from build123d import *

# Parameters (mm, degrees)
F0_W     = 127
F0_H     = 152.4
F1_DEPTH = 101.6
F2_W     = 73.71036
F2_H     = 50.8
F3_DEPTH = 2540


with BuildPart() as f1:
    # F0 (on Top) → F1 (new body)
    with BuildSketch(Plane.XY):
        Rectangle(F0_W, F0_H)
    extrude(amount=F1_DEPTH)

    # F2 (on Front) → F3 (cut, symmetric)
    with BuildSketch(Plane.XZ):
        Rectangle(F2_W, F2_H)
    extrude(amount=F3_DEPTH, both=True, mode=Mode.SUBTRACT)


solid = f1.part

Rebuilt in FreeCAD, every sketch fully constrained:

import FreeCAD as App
import Part
import Sketcher
from FreeCAD import Vector
Q = App.Units.Quantity


def add_polygon(sketch, points):
    """Adds a closed chain of lines whose ends are joined by coincident constraints."""
    first, n = sketch.GeometryCount, len(points)
    for a, b in zip(points, points[1:] + points[:1]):
        sketch.addGeometry(Part.LineSegment(App.Vector(*a, 0), App.Vector(*b, 0)), False)
    for i in range(n):
        sketch.addConstraint(Sketcher.Constraint("Coincident", first + i, 2, first + (i + 1) % n, 1))

doc = App.newDocument("Part")
body = doc.addObject("PartDesign::Body", "Body")

# Sketch on XY plane
sketch1 = body.newObject("Sketcher::SketchObject", "Sketch")
sketch1.AttachmentSupport = (doc.getObject("XY_Plane"), [""])
sketch1.MapMode = "FlatFace"
add_polygon(sketch1, [(-63.5, 76.2), (-63.5, -76.2), (63.5, -76.2), (63.5, 76.2)])  # lines 0-3
sketch1.addConstraint(Sketcher.Constraint("Vertical", 0))
sketch1.addConstraint(Sketcher.Constraint("Horizontal", 1))
sketch1.addConstraint(Sketcher.Constraint("Vertical", 2))
sketch1.addConstraint(Sketcher.Constraint("Horizontal", 3))
sketch1.addConstraint(Sketcher.Constraint("Symmetric", 0, 2, 2, 2, -1, 1))
sketch1.addConstraint(Sketcher.Constraint("DistanceX", 1, 1, 1, 2, Q("5 in")))
sketch1.addConstraint(Sketcher.Constraint("DistanceY", 0, 2, 0, 1, Q("6 in")))
pad1 = body.newObject("PartDesign::Pad", "Pad")
pad1.Profile = sketch1
pad1.Length = Q("4 in")

# Sketch on XZ plane
sketch2 = body.newObject("Sketcher::SketchObject", "Sketch001")
sketch2.AttachmentSupport = (doc.getObject("XZ_Plane"), [""])
sketch2.MapMode = "FlatFace"
add_polygon(sketch2, [(-36.85518, 25.4), (-36.85518, -25.4), (36.85518, -25.4), (36.85518, 25.4)])  # lines 0-3
sketch2.addConstraint(Sketcher.Constraint("Vertical", 0))
sketch2.addConstraint(Sketcher.Constraint("Horizontal", 1))
sketch2.addConstraint(Sketcher.Constraint("Vertical", 2))
sketch2.addConstraint(Sketcher.Constraint("Horizontal", 3))
sketch2.addConstraint(Sketcher.Constraint("Symmetric", 0, 2, 2, 2, -1, 1))
sketch2.addConstraint(Sketcher.Constraint("DistanceY", 0, 2, 0, 1, Q("2 in")))
sketch2.addConstraint(Sketcher.Constraint("DistanceX", 1, 1, 1, 2, 73.71036))
pocket1 = body.newObject("PartDesign::Pocket", "Pocket")
pocket1.Profile = sketch2
pocket1.Length = Q("200 in")
pocket1.Midplane = True

doc.recompute()
